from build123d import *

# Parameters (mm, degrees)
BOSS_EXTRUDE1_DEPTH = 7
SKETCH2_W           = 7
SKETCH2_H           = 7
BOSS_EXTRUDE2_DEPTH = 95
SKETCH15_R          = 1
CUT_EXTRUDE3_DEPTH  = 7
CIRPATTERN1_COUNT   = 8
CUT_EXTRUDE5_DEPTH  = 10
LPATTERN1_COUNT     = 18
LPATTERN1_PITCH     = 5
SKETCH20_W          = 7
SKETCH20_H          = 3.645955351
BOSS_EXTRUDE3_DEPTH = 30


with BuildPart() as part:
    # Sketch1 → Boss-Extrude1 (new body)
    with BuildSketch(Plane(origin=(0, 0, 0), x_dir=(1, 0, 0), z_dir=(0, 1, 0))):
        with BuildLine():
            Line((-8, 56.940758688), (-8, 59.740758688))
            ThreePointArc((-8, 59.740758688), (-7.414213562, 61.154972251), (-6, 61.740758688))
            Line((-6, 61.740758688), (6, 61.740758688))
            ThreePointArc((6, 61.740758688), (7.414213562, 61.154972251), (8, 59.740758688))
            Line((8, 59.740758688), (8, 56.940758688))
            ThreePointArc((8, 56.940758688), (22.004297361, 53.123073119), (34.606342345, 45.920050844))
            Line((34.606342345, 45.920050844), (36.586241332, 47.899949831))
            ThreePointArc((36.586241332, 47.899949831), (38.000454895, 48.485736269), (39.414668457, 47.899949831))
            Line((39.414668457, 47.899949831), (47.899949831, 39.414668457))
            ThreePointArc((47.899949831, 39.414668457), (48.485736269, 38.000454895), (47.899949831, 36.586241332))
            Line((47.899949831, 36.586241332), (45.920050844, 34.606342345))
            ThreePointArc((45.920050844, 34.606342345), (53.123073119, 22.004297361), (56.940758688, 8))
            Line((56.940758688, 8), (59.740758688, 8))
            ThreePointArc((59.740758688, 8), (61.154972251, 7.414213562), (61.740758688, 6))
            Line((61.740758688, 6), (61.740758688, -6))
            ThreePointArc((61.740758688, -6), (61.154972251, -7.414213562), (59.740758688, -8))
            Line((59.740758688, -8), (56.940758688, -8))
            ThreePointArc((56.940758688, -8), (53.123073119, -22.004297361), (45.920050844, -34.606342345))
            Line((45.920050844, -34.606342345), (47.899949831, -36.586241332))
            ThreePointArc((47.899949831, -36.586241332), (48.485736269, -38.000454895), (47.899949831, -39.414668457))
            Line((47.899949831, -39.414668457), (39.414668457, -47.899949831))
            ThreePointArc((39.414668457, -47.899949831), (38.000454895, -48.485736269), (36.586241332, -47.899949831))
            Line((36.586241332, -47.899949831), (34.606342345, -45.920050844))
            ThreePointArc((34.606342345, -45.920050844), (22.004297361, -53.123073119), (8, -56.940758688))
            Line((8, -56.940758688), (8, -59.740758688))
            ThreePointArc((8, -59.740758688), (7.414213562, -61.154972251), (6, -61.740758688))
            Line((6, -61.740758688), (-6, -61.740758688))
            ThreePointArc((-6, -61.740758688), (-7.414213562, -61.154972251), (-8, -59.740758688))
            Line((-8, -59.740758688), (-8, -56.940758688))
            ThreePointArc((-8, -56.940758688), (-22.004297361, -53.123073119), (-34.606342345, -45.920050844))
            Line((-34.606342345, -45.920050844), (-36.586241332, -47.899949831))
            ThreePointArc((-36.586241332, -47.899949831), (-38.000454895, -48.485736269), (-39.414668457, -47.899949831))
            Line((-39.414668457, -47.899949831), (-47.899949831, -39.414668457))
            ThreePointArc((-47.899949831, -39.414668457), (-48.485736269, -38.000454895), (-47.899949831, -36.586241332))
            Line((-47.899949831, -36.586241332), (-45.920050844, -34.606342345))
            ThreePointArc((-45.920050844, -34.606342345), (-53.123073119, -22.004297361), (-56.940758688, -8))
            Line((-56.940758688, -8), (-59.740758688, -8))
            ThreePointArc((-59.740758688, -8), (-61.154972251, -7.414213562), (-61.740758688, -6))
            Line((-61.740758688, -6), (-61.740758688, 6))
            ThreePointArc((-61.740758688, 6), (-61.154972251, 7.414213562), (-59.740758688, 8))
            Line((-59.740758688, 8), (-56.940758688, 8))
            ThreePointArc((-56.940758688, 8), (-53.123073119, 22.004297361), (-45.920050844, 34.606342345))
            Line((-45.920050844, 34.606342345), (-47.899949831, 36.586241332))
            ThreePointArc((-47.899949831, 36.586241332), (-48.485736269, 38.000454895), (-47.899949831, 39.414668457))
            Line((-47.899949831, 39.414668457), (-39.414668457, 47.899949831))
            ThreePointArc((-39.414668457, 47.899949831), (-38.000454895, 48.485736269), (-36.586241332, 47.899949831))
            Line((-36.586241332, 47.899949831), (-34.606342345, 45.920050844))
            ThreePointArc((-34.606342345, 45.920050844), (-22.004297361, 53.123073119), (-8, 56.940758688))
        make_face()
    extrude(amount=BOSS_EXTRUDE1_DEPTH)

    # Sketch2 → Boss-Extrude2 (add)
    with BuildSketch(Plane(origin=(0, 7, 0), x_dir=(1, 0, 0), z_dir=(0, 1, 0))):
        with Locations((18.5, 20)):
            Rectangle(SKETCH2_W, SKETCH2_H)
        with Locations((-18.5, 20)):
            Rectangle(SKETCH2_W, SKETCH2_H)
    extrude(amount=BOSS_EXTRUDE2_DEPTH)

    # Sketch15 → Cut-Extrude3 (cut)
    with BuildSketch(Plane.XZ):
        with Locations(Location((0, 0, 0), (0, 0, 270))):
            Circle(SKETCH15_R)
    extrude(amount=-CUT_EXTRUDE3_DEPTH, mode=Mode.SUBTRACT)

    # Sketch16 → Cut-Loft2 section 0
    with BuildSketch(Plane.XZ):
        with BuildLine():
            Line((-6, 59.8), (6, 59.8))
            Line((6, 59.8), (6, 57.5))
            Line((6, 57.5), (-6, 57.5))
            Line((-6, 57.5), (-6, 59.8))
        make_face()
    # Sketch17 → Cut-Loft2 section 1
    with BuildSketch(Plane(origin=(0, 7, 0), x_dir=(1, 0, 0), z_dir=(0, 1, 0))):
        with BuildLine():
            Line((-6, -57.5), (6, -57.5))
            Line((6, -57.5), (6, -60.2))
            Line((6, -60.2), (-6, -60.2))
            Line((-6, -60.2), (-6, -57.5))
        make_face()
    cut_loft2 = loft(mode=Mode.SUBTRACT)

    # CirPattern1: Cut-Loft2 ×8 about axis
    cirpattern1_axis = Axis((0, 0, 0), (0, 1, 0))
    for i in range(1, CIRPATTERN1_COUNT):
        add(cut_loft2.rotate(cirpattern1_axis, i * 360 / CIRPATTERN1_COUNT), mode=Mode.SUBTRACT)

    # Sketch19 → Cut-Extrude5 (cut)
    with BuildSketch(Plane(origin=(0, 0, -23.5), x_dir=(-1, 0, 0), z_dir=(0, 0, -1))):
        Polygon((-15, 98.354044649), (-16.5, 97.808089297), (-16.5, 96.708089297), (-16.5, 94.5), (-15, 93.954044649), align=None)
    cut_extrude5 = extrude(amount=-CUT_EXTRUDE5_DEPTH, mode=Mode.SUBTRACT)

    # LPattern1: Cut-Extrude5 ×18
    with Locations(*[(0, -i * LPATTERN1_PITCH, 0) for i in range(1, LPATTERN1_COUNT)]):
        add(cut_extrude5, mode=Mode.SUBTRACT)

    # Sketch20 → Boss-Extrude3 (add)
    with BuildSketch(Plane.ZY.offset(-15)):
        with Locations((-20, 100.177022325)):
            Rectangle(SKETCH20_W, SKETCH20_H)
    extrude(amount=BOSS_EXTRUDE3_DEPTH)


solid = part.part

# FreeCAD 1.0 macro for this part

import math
import FreeCAD as App
import Part
import Sketcher

V = App.Vector
Q = App.Units.Quantity

doc = App.newDocument("Part")
params = doc.addObject("Spreadsheet::Sheet", "Params")
for row, (alias, value) in enumerate([
    ("sketch1_radius", "2 mm"),
    ("sketch1_radius2", "57.5 mm"),
    ("sketch1_width", "12 mm"),
    ("sketch1_length", "12 mm"),
    ("sketch1_width2", "2.8 mm"),
    ("pad1_length", "7 mm"),
    ("sketch2_width", "7 mm"),
    ("pad2_length", "95 mm"),
    ("sketch3_diameter", "2 mm"),
    ("pocket1_length", "7 mm"),
    ("sketch4_width", "12 mm"),
    ("sketch4_height", "2.3 mm"),
    ("sketch5_width", "12 mm"),
    ("sketch5_height", "2.7 mm"),
    ("sketch6_height", "4.4 mm"),
    ("pocket2_length", "10 mm"),
    ("linearpattern_pitch", "5 mm"),
    ("sketch7_height", "7 mm"),
    ("pad3_length", "30 mm"),
], start=1):
    params.set(f"A{row}", alias)
    params.set(f"B{row}", "=" + value)
    params.setAlias(f"B{row}", alias)

body = doc.addObject("PartDesign::Body", "Body")

# Sketch on XZ plane
sketch1 = body.newObject("Sketcher::SketchObject", "Sketch")
sketch1.AttachmentSupport = (doc.getObject("XZ_Plane"), [""])
sketch1.MapMode = "FlatFace"
sketch1.addGeometry([
    Part.LineSegment(V(-8, -59.7, 0), V(-8, -56.9, 0)),  # 0
    Part.ArcOfCircle(Part.Circle(V(0, 0, 0), V(0, 0, 1), 57.5), math.radians(-127), math.radians(-98)),  # 1
    Part.LineSegment(V(-34.6, -45.9, 0), V(-36.6, -47.9, 0)),  # 2
    Part.ArcOfCircle(Part.Circle(V(-38, -46.5, 0), V(0, 0, 1), 2), math.radians(-135), math.radians(-45)),  # 3
    Part.LineSegment(V(-39.4, -47.9, 0), V(-47.9, -39.4, 0)),  # 4
    Part.ArcOfCircle(Part.Circle(V(-46.5, -38, 0), V(0, 0, 1), 2), math.radians(135), math.radians(225)),  # 5
    Part.LineSegment(V(-47.9, -36.6, 0), V(-45.9, -34.6, 0)),  # 6
    Part.ArcOfCircle(Part.Circle(V(0, 0, 0), V(0, 0, 1), 57.5), math.radians(-172), math.radians(-143)),  # 7
    Part.LineSegment(V(-56.9, -8, 0), V(-59.7, -8, 0)),  # 8
    Part.ArcOfCircle(Part.Circle(V(-59.7, -6, 0), V(0, 0, 1), 2), math.radians(180), math.radians(270)),  # 9
    Part.LineSegment(V(-61.7, -6, 0), V(-61.7, 6, 0)),  # 10
    Part.ArcOfCircle(Part.Circle(V(-59.7, 6, 0), V(0, 0, 1), 2), math.radians(90), math.radians(180)),  # 11
    Part.LineSegment(V(-59.7, 8, 0), V(-56.9, 8, 0)),  # 12
    Part.ArcOfCircle(Part.Circle(V(0, 0, 0), V(0, 0, 1), 57.5), math.radians(143), math.radians(172)),  # 13
    Part.LineSegment(V(-45.9, 34.6, 0), V(-47.9, 36.6, 0)),  # 14
    Part.ArcOfCircle(Part.Circle(V(-46.5, 38, 0), V(0, 0, 1), 2), math.radians(135), math.radians(225)),  # 15
    Part.LineSegment(V(-47.9, 39.4, 0), V(-39.4, 47.9, 0)),  # 16
    Part.ArcOfCircle(Part.Circle(V(-38, 46.5, 0), V(0, 0, 1), 2), math.radians(45), math.radians(135)),  # 17
    Part.LineSegment(V(-36.6, 47.9, 0), V(-34.6, 45.9, 0)),  # 18
    Part.ArcOfCircle(Part.Circle(V(0, 0, 0), V(0, 0, 1), 57.5), math.radians(98), math.radians(127)),  # 19
    Part.LineSegment(V(-8, 56.9, 0), V(-8, 59.7, 0)),  # 20
    Part.ArcOfCircle(Part.Circle(V(-6, 59.7, 0), V(0, 0, 1), 2), math.radians(90), math.radians(180)),  # 21
    Part.LineSegment(V(-6, 61.7, 0), V(6, 61.7, 0)),  # 22
    Part.ArcOfCircle(Part.Circle(V(6, 59.7, 0), V(0, 0, 1), 2), math.radians(0), math.radians(90)),  # 23
    Part.LineSegment(V(8, 59.7, 0), V(8, 56.9, 0)),  # 24
    Part.ArcOfCircle(Part.Circle(V(0, 0, 0), V(0, 0, 1), 57.5), math.radians(53), math.radians(82)),  # 25
    Part.LineSegment(V(34.6, 45.9, 0), V(36.6, 47.9, 0)),  # 26
    Part.ArcOfCircle(Part.Circle(V(38, 46.5, 0), V(0, 0, 1), 2), math.radians(45), math.radians(135)),  # 27
    Part.LineSegment(V(39.4, 47.9, 0), V(47.9, 39.4, 0)),  # 28
    Part.ArcOfCircle(Part.Circle(V(46.5, 38, 0), V(0, 0, 1), 2), math.radians(-45), math.radians(45)),  # 29
    Part.LineSegment(V(47.9, 36.6, 0), V(45.9, 34.6, 0)),  # 30
    Part.ArcOfCircle(Part.Circle(V(0, 0, 0), V(0, 0, 1), 57.5), math.radians(8), math.radians(37)),  # 31
    Part.LineSegment(V(56.9, 8, 0), V(59.7, 8, 0)),  # 32
    Part.ArcOfCircle(Part.Circle(V(59.7, 6, 0), V(0, 0, 1), 2), math.radians(0), math.radians(90)),  # 33
    Part.LineSegment(V(61.7, 6, 0), V(61.7, -6, 0)),  # 34
    Part.ArcOfCircle(Part.Circle(V(59.7, -6, 0), V(0, 0, 1), 2), math.radians(-90), math.radians(0)),  # 35
    Part.LineSegment(V(59.7, -8, 0), V(56.9, -8, 0)),  # 36
    Part.ArcOfCircle(Part.Circle(V(0, 0, 0), V(0, 0, 1), 57.5), math.radians(-37), math.radians(-8)),  # 37
    Part.LineSegment(V(45.9, -34.6, 0), V(47.9, -36.6, 0)),  # 38
    Part.ArcOfCircle(Part.Circle(V(46.5, -38, 0), V(0, 0, 1), 2), math.radians(-45), math.radians(45)),  # 39
    Part.LineSegment(V(47.9, -39.4, 0), V(39.4, -47.9, 0)),  # 40
    Part.ArcOfCircle(Part.Circle(V(38, -46.5, 0), V(0, 0, 1), 2), math.radians(-135), math.radians(-45)),  # 41
    Part.LineSegment(V(36.6, -47.9, 0), V(34.6, -45.9, 0)),  # 42
    Part.ArcOfCircle(Part.Circle(V(0, 0, 0), V(0, 0, 1), 57.5), math.radians(-82), math.radians(-53)),  # 43
    Part.LineSegment(V(8, -56.9, 0), V(8, -59.7, 0)),  # 44
    Part.ArcOfCircle(Part.Circle(V(6, -59.7, 0), V(0, 0, 1), 2), math.radians(-90), math.radians(0)),  # 45
    Part.LineSegment(V(6, -61.7, 0), V(-6, -61.7, 0)),  # 46
    Part.ArcOfCircle(Part.Circle(V(-6, -59.7, 0), V(0, 0, 1), 2), math.radians(180), math.radians(270)),  # 47
], False)
sketch1.addConstraint([
    Sketcher.Constraint("Coincident", 0, 2, 1, 2),
    Sketcher.Constraint("Coincident", 1, 1, 2, 1),
    Sketcher.Constraint("Tangent", 2, 2, 3, 2),
    Sketcher.Constraint("Tangent", 3, 1, 4, 1),
    Sketcher.Constraint("Tangent", 4, 2, 5, 2),
    Sketcher.Constraint("Tangent", 5, 1, 6, 1),
    Sketcher.Constraint("Coincident", 6, 2, 7, 2),
    Sketcher.Constraint("Coincident", 7, 1, 8, 1),
    Sketcher.Constraint("Tangent", 8, 2, 9, 2),
    Sketcher.Constraint("Tangent", 9, 1, 10, 1),
    Sketcher.Constraint("Tangent", 10, 2, 11, 2),
    Sketcher.Constraint("Tangent", 11, 1, 12, 1),
    Sketcher.Constraint("Coincident", 12, 2, 13, 2),
    Sketcher.Constraint("Coincident", 13, 1, 14, 1),
    Sketcher.Constraint("Tangent", 14, 2, 15, 2),
    Sketcher.Constraint("Tangent", 15, 1, 16, 1),
    Sketcher.Constraint("Tangent", 16, 2, 17, 2),
    Sketcher.Constraint("Tangent", 17, 1, 18, 1),
    Sketcher.Constraint("Coincident", 18, 2, 19, 2),
    Sketcher.Constraint("Coincident", 19, 1, 20, 1),
    Sketcher.Constraint("Tangent", 20, 2, 21, 2),
    Sketcher.Constraint("Tangent", 21, 1, 22, 1),
    Sketcher.Constraint("Tangent", 22, 2, 23, 2),
    Sketcher.Constraint("Tangent", 23, 1, 24, 1),
    Sketcher.Constraint("Coincident", 24, 2, 25, 2),
    Sketcher.Constraint("Coincident", 25, 1, 26, 1),
    Sketcher.Constraint("Tangent", 26, 2, 27, 2),
    Sketcher.Constraint("Tangent", 27, 1, 28, 1),
    Sketcher.Constraint("Tangent", 28, 2, 29, 2),
    Sketcher.Constraint("Tangent", 29, 1, 30, 1),
    Sketcher.Constraint("Coincident", 30, 2, 31, 2),
    Sketcher.Constraint("Coincident", 31, 1, 32, 1),
    Sketcher.Constraint("Tangent", 32, 2, 33, 2),
    Sketcher.Constraint("Tangent", 33, 1, 34, 1),
    Sketcher.Constraint("Tangent", 34, 2, 35, 2),
    Sketcher.Constraint("Tangent", 35, 1, 36, 1),
    Sketcher.Constraint("Coincident", 36, 2, 37, 2),
    Sketcher.Constraint("Coincident", 37, 1, 38, 1),
    Sketcher.Constraint("Tangent", 38, 2, 39, 2),
    Sketcher.Constraint("Tangent", 39, 1, 40, 1),
    Sketcher.Constraint("Tangent", 40, 2, 41, 2),
    Sketcher.Constraint("Tangent", 41, 1, 42, 1),
    Sketcher.Constraint("Coincident", 42, 2, 43, 2),
    Sketcher.Constraint("Coincident", 43, 1, 44, 1),
    Sketcher.Constraint("Tangent", 44, 2, 45, 2),
    Sketcher.Constraint("Tangent", 45, 1, 46, 1),
    Sketcher.Constraint("Tangent", 46, 2, 47, 2),
    Sketcher.Constraint("Tangent", 47, 1, 0, 1),
    Sketcher.Constraint("Vertical", 0),
    Sketcher.Constraint("Horizontal", 8),
    Sketcher.Constraint("Vertical", 10),
    Sketcher.Constraint("Horizontal", 12),
    Sketcher.Constraint("Vertical", 20),
    Sketcher.Constraint("Horizontal", 22),
    Sketcher.Constraint("Vertical", 24),
    Sketcher.Constraint("Horizontal", 32),
    Sketcher.Constraint("Vertical", 34),
    Sketcher.Constraint("Horizontal", 36),
    Sketcher.Constraint("Vertical", 44),
    Sketcher.Constraint("Horizontal", 46),
    Sketcher.Constraint("Coincident", 1, 3, -1, 1),
    Sketcher.Constraint("Coincident", 7, 3, -1, 1),
    Sketcher.Constraint("Coincident", 13, 3, -1, 1),
    Sketcher.Constraint("Coincident", 19, 3, -1, 1),
    Sketcher.Constraint("Coincident", 25, 3, -1, 1),
    Sketcher.Constraint("Coincident", 31, 3, -1, 1),
    Sketcher.Constraint("Coincident", 37, 3, -1, 1),
    Sketcher.Constraint("Coincident", 43, 3, -1, 1),
    Sketcher.Constraint("Equal", 3, 5),
    Sketcher.Constraint("Equal", 1, 7),
    Sketcher.Constraint("Equal", 5, 9),
    Sketcher.Constraint("Equal", 9, 11),
    Sketcher.Constraint("Equal", 7, 13),
    Sketcher.Constraint("Equal", 11, 15),
    Sketcher.Constraint("Equal", 15, 17),
    Sketcher.Constraint("Equal", 13, 19),
    Sketcher.Constraint("Equal", 17, 21),
    Sketcher.Constraint("Equal", 21, 23),
    Sketcher.Constraint("Equal", 19, 25),
    Sketcher.Constraint("Equal", 23, 27),
    Sketcher.Constraint("Equal", 27, 29),
    Sketcher.Constraint("Equal", 25, 31),
    Sketcher.Constraint("Equal", 29, 33),
    Sketcher.Constraint("Equal", 33, 35),
    Sketcher.Constraint("Equal", 31, 37),
    Sketcher.Constraint("Equal", 35, 39),
    Sketcher.Constraint("Equal", 39, 41),
    Sketcher.Constraint("Equal", 37, 43),
    Sketcher.Constraint("Equal", 41, 45),
    Sketcher.Constraint("Equal", 45, 47),
    Sketcher.Constraint("Symmetric", 3, 3, 27, 3, -1, 1),
    Sketcher.Constraint("Symmetric", 5, 3, 29, 3, -1, 1),
    Sketcher.Constraint("Symmetric", 9, 3, 33, 3, -1, 1),
    Sketcher.Constraint("Symmetric", 15, 3, 39, 3, -1, 1),
    Sketcher.Constraint("Symmetric", 17, 3, 41, 3, -1, 1),
    Sketcher.Constraint("Symmetric", 21, 3, 45, 3, -1, 1),
    Sketcher.Constraint("Symmetric", 17, 3, 27, 3, -2),
    Sketcher.Constraint("Symmetric", 15, 3, 29, 3, -2),
    Sketcher.Constraint("Perpendicular", 2, 4),
    Sketcher.Constraint("Perpendicular", 4, 6),
    Sketcher.Constraint("Perpendicular", 6, 14),
    Sketcher.Constraint("Perpendicular", 14, 16),
    Sketcher.Constraint("Perpendicular", 16, 18),
    Sketcher.Constraint("Perpendicular", 18, 26),
    Sketcher.Constraint("Perpendicular", 28, 30),
    Sketcher.Constraint("Perpendicular", 30, 38),
    Sketcher.Constraint("Perpendicular", 40, 42),
    Sketcher.Constraint("Horizontal", 11, 3, 33, 3),
    Sketcher.Constraint("Horizontal", 9, 3, 35, 3),
    Sketcher.Constraint("Horizontal", 19, 1, 24, 2),
    Sketcher.Constraint("Horizontal", 0, 2, 43, 1),
    Sketcher.Constraint("Equal", 36, 0),
    Sketcher.Constraint("Equal", 46, 10),
    Sketcher.Constraint("Equal", 2, 6),
    Sketcher.Constraint("Radius", 3, Q("2 mm")),
    Sketcher.Constraint("Radius", 1, Q("57.5 mm")),
    Sketcher.Constraint("DistanceX", 22, 1, 22, 2, Q("12 mm")),
    Sketcher.Constraint("Distance", 4, Q("12 mm")),
    Sketcher.Constraint("DistanceX", 8, 2, 8, 1, Q("2.8 mm")),
    Sketcher.Constraint("Distance", 2, Q("2.8 mm")),
])
sketch1.setExpression("Constraints[114]", "Params.sketch1_radius")
sketch1.setExpression("Constraints[115]", "Params.sketch1_radius2")
sketch1.setExpression("Constraints[116]", "Params.sketch1_width")
sketch1.setExpression("Constraints[117]", "Params.sketch1_length")
sketch1.setExpression("Constraints[118]", "Params.sketch1_width2")
pad1 = body.newObject("PartDesign::Pad", "Pad")
pad1.Profile = sketch1
pad1.setExpression("Length", "Params.pad1_length")
pad1.Reversed = True

# Sketch on XZ plane
sketch2 = body.newObject("Sketcher::SketchObject", "Sketch001")
sketch2.AttachmentSupport = (doc.getObject("XZ_Plane"), [""])
sketch2.MapMode = "FlatFace"
sketch2.AttachmentOffset = App.Placement(V(0, 0, -7), App.Rotation())
sketch2.addGeometry([
    Part.LineSegment(V(15, -24, 0), V(15, -16, 0)),  # 0
    Part.LineSegment(V(15, -16, 0), V(22, -16, 0)),  # 1
    Part.LineSegment(V(22, -16, 0), V(22, -24, 0)),  # 2
    Part.LineSegment(V(22, -24, 0), V(15, -24, 0)),  # 3
    Part.LineSegment(V(-22, -24, 0), V(-22, -16, 0)),  # 4
    Part.LineSegment(V(-22, -16, 0), V(-15, -16, 0)),  # 5
    Part.LineSegment(V(-15, -16, 0), V(-15, -24, 0)),  # 6
    Part.LineSegment(V(-15, -24, 0), V(-22, -24, 0)),  # 7
], False)
sketch2.addConstraint([
    Sketcher.Constraint("Coincident", 0, 2, 1, 1),
    Sketcher.Constraint("Coincident", 1, 2, 2, 1),
    Sketcher.Constraint("Coincident", 2, 2, 3, 1),
    Sketcher.Constraint("Coincident", 3, 2, 0, 1),
    Sketcher.Constraint("Coincident", 4, 2, 5, 1),
    Sketcher.Constraint("Coincident", 5, 2, 6, 1),
    Sketcher.Constraint("Coincident", 6, 2, 7, 1),
    Sketcher.Constraint("Coincident", 7, 2, 4, 1),
    Sketcher.Constraint("Vertical", 0),
    Sketcher.Constraint("Horizontal", 1),
    Sketcher.Constraint("Vertical", 2),
    Sketcher.Constraint("Horizontal", 3),
    Sketcher.Constraint("Vertical", 4),
    Sketcher.Constraint("Horizontal", 5),
    Sketcher.Constraint("Vertical", 6),
    Sketcher.Constraint("Horizontal", 7),
    Sketcher.Constraint("Symmetric", 1, 2, 4, 2, -2),
    Sketcher.Constraint("Symmetric", 3, 2, 6, 2, -2),
    Sketcher.Constraint("Equal", 7, 0),
    Sketcher.Constraint("DistanceX", 1, 1, 1, 2, Q("7 mm")),
    Sketcher.Constraint("DistanceX", -1, 1, 0, 2, Q("15 mm")),
    Sketcher.Constraint("DistanceY", 0, 2, -1, 1, Q("16.5 mm")),
])
sketch2.setExpression("Constraints[19]", "Params.sketch2_width")
pad2 = body.newObject("PartDesign::Pad", "Pad001")
pad2.Profile = sketch2
pad2.setExpression("Length", "Params.pad2_length")
pad2.Reversed = True

# Sketch on XZ plane
sketch3 = body.newObject("Sketcher::SketchObject", "Sketch002")
sketch3.AttachmentSupport = (doc.getObject("XZ_Plane"), [""])
sketch3.MapMode = "FlatFace"
sketch3.addGeometry(Part.Circle(V(0, 0, 0), V(0, 0, 1), 1), False)
sketch3.addConstraint([
    Sketcher.Constraint("Coincident", 0, 3, -1, 1),
    Sketcher.Constraint("Diameter", 0, Q("2 mm")),
])
sketch3.setExpression("Constraints[1]", "Params.sketch3_diameter")
pocket1 = body.newObject("PartDesign::Pocket", "Pocket")
pocket1.Profile = sketch3
pocket1.setExpression("Length", "Params.pocket1_length")

# Sketch on XZ plane
sketch4 = body.newObject("Sketcher::SketchObject", "Sketch003")
sketch4.AttachmentSupport = (doc.getObject("XZ_Plane"), [""])
sketch4.MapMode = "FlatFace"
sketch4.addGeometry([
    Part.LineSegment(V(6, 59.8, 0), V(-6, 59.8, 0)),
    Part.LineSegment(V(-6, 59.8, 0), V(-6, 57.5, 0)),
    Part.LineSegment(V(-6, 57.5, 0), V(6, 57.5, 0)),
    Part.LineSegment(V(6, 57.5, 0), V(6, 59.8, 0)),
], False)
sketch4.addConstraint([
    Sketcher.Constraint("Coincident", 0, 2, 1, 1),
    Sketcher.Constraint("Coincident", 1, 2, 2, 1),
    Sketcher.Constraint("Coincident", 2, 2, 3, 1),
    Sketcher.Constraint("Coincident", 3, 2, 0, 1),
    Sketcher.Constraint("Horizontal", 0),
    Sketcher.Constraint("Vertical", 1),
    Sketcher.Constraint("Horizontal", 2),
    Sketcher.Constraint("Vertical", 3),
    Sketcher.Constraint("DistanceX", 0, 2, 0, 1, Q("12 mm")),
    Sketcher.Constraint("DistanceY", 1, 2, 1, 1, Q("2.3 mm")),
    Sketcher.Constraint("DistanceX", 0, 2, -1, 1, Q("6 mm")),
    Sketcher.Constraint("DistanceY", -1, 1, 0, 2, Q("59.8 mm")),
])
sketch4.setExpression("Constraints[8]", "Params.sketch4_width")
sketch4.setExpression("Constraints[9]", "Params.sketch4_height")

# Sketch on XZ plane
sketch5 = body.newObject("Sketcher::SketchObject", "Sketch004")
sketch5.AttachmentSupport = (doc.getObject("XZ_Plane"), [""])
sketch5.MapMode = "FlatFace"
sketch5.AttachmentOffset = App.Placement(V(0, 0, -7), App.Rotation())
sketch5.addGeometry([
    Part.LineSegment(V(6, 57.5, 0), V(-6, 57.5, 0)),
    Part.LineSegment(V(-6, 57.5, 0), V(-6, 60.2, 0)),
    Part.LineSegment(V(-6, 60.2, 0), V(6, 60.2, 0)),
    Part.LineSegment(V(6, 60.2, 0), V(6, 57.5, 0)),
], False)
sketch5.addConstraint([
    Sketcher.Constraint("Coincident", 0, 2, 1, 1),
    Sketcher.Constraint("Coincident", 1, 2, 2, 1),
    Sketcher.Constraint("Coincident", 2, 2, 3, 1),
    Sketcher.Constraint("Coincident", 3, 2, 0, 1),
    Sketcher.Constraint("Horizontal", 0),
    Sketcher.Constraint("Vertical", 1),
    Sketcher.Constraint("Horizontal", 2),
    Sketcher.Constraint("Vertical", 3),
    Sketcher.Constraint("DistanceX", 0, 2, 0, 1, Q("12 mm")),
    Sketcher.Constraint("DistanceY", 1, 1, 1, 2, Q("2.7 mm")),
    Sketcher.Constraint("DistanceX", 0, 2, -1, 1, Q("6 mm")),
    Sketcher.Constraint("DistanceY", -1, 1, 0, 2, Q("57.5 mm")),
])
sketch5.setExpression("Constraints[8]", "Params.sketch5_width")
sketch5.setExpression("Constraints[9]", "Params.sketch5_height")

subtractiveloft = body.newObject("PartDesign::SubtractiveLoft", "SubtractiveLoft")
subtractiveloft.Profile = sketch4
subtractiveloft.Sections = [sketch5]
doc.recompute()

polarpattern = body.newObject("PartDesign::PolarPattern", "PolarPattern")
polarpattern.Originals = [subtractiveloft]
polarpattern.Axis = (doc.getObject("Y_Axis"), [""])
polarpattern.Angle = 360
polarpattern.Occurrences = 8
body.Tip = polarpattern

# Sketch on XY plane
sketch6 = body.newObject("Sketcher::SketchObject", "Sketch005")
sketch6.AttachmentSupport = (doc.getObject("XY_Plane"), [""])
sketch6.MapMode = "FlatFace"
sketch6.AttachmentOffset = App.Placement(V(0, 0, -23.5), App.Rotation())
sketch6.addGeometry([
    Part.LineSegment(V(15, 98.4, 0), V(16.5, 97.8, 0)),
    Part.LineSegment(V(16.5, 97.8, 0), V(16.5, 94.5, 0)),
    Part.LineSegment(V(16.5, 94.5, 0), V(15, 94, 0)),
    Part.LineSegment(V(15, 94, 0), V(15, 98.4, 0)),
], False)
sketch6.addConstraint([
    Sketcher.Constraint("Coincident", 0, 2, 1, 1),
    Sketcher.Constraint("Coincident", 1, 2, 2, 1),
    Sketcher.Constraint("Coincident", 2, 2, 3, 1),
    Sketcher.Constraint("Coincident", 3, 2, 0, 1),
    Sketcher.Constraint("Vertical", 1),
    Sketcher.Constraint("Vertical", 3),
    Sketcher.Constraint("Equal", 0, 2),
    Sketcher.Constraint("Angle", 0, Q("-20 deg")),
    Sketcher.Constraint("DistanceY", 3, 1, 3, 2, Q("4.4 mm")),
    Sketcher.Constraint("DistanceX", -1, 1, 2, 2, Q("15 mm")),
    Sketcher.Constraint("DistanceX", -1, 1, 0, 2, Q("16.5 mm")),
    Sketcher.Constraint("DistanceY", -1, 1, 1, 2, Q("94.5 mm")),
])
sketch6.setExpression("Constraints[8]", "Params.sketch6_height")
pocket2 = body.newObject("PartDesign::Pocket", "Pocket001")
pocket2.Profile = sketch6
pocket2.setExpression("Length", "Params.pocket2_length")
pocket2.Reversed = True
doc.recompute()

linearpattern = body.newObject("PartDesign::LinearPattern", "LinearPattern")
linearpattern.Originals = [pocket2]
linearpattern.Direction = (doc.getObject("Y_Axis"), [""])
linearpattern.Mode = "offset"
linearpattern.setExpression("Offset", "Params.linearpattern_pitch")
linearpattern.Occurrences = 18
linearpattern.Reversed = True
body.Tip = linearpattern

# Sketch on YZ plane
sketch7 = body.newObject("Sketcher::SketchObject", "Sketch006")
sketch7.AttachmentSupport = (doc.getObject("YZ_Plane"), [""])
sketch7.MapMode = "FlatFace"
sketch7.AttachmentOffset = App.Placement(V(0, 0, 15), App.Rotation())
sketch7.addGeometry([
    Part.LineSegment(V(102, -23.5, 0), V(98.4, -23.5, 0)),
    Part.LineSegment(V(98.4, -23.5, 0), V(98.4, -16.5, 0)),
    Part.LineSegment(V(98.4, -16.5, 0), V(102, -16.5, 0)),
    Part.LineSegment(V(102, -16.5, 0), V(102, -23.5, 0)),
], False)
sketch7.addConstraint([
    Sketcher.Constraint("Coincident", 0, 2, 1, 1),
    Sketcher.Constraint("Coincident", 1, 2, 2, 1),
    Sketcher.Constraint("Coincident", 2, 2, 3, 1),
    Sketcher.Constraint("Coincident", 3, 2, 0, 1),
    Sketcher.Constraint("Horizontal", 0),
    Sketcher.Constraint("Vertical", 1),
    Sketcher.Constraint("Horizontal", 2),
    Sketcher.Constraint("Vertical", 3),
    Sketcher.Constraint("DistanceY", 1, 1, 1, 2, Q("7 mm")),
    Sketcher.Constraint("DistanceX", -1, 1, 2, 2, Q("102 mm")),
    Sketcher.Constraint("DistanceY", 0, 2, -1, 1, Q("23.5 mm")),
    Sketcher.Constraint("DistanceX", 0, 2, 0, 1, Q("3.645955 mm")),
])
sketch7.setExpression("Constraints[8]", "Params.sketch7_height")
pad3 = body.newObject("PartDesign::Pad", "Pad002")
pad3.Profile = sketch7
pad3.setExpression("Length", "Params.pad3_length")
pad3.Reversed = True

doc.recompute()
